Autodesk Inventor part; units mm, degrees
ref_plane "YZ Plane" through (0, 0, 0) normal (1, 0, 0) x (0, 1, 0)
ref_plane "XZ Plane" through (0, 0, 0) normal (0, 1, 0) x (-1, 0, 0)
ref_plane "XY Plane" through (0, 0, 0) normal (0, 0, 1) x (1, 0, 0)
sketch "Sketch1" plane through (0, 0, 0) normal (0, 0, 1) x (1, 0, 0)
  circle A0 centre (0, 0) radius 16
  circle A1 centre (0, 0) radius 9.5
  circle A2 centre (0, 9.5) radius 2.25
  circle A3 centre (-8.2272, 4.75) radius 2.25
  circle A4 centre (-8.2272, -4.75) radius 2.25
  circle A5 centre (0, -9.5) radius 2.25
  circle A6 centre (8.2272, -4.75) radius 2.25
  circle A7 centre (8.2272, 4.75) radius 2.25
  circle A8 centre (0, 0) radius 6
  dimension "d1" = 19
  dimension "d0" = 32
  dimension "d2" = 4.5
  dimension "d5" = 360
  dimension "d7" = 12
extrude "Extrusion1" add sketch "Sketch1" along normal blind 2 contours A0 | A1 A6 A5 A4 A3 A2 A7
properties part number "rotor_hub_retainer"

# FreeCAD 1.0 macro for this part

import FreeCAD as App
import Part
import Sketcher

V = App.Vector

doc = App.newDocument("Part")
body = doc.addObject("PartDesign::Body", "Body")

# Sketch on XY plane
sketch1 = body.newObject("Sketcher::SketchObject", "Sketch")
sketch1.AttachmentSupport = (doc.getObject("XY_Plane"), [""])
sketch1.MapMode = "FlatFace"
sketch1.addGeometry([
    Part.Circle(V(0, 0, 0), V(0, 0, 1), 16),  # 0
    Part.Circle(V(8.2, 4.8, 0), V(0, 0, 1), 2.2),  # 1
    Part.Circle(V(0, 9.5, 0), V(0, 0, 1), 2.2),  # 2
    Part.Circle(V(-8.2, 4.8, 0), V(0, 0, 1), 2.2),  # 3
    Part.Circle(V(-8.2, -4.8, 0), V(0, 0, 1), 2.2),  # 4
    Part.Circle(V(0, -9.5, 0), V(0, 0, 1), 2.2),  # 5
    Part.Circle(V(8.2, -4.8, 0), V(0, 0, 1), 2.2),  # 6
    Part.Circle(V(0, 0, 0), V(0, 0, 1), 6),  # 7
], False)
sketch1.addConstraint([
    Sketcher.Constraint("Coincident", 0, 3, -1, 1),
    Sketcher.Constraint("Coincident", 7, 3, -1, 1),
    Sketcher.Constraint("Equal", 1, 2),
    Sketcher.Constraint("Equal", 2, 3),
    Sketcher.Constraint("Equal", 3, 4),
    Sketcher.Constraint("Equal", 4, 5),
    Sketcher.Constraint("Equal", 5, 6),
    Sketcher.Constraint("Symmetric", 1, 3, 4, 3, -1, 1),
    Sketcher.Constraint("Symmetric", 2, 3, 5, 3, -1, 1),
    Sketcher.Constraint("Symmetric", 3, 3, 6, 3, -1, 1),
    Sketcher.Constraint("Symmetric", 1, 3, 3, 3, -2),
    Sketcher.Constraint("PointOnObject", 2, 3, -2),
    Sketcher.Constraint("Diameter", 0, 32.0),
    Sketcher.Constraint("Diameter", 7, 12.0),
    Sketcher.Constraint("Diameter", 1, 4.5),
    Sketcher.Constraint("DistanceY", 5, 3, 2, 3, 19.0),
    Sketcher.Constraint("DistanceY", 4, 3, 3, 3, 9.5),
    Sketcher.Constraint("DistanceX", -1, 1, 1, 3, 8.2272),
])
pad1 = body.newObject("PartDesign::Pad", "Pad")
pad1.Profile = sketch1
pad1.Length = 2

doc.recompute()
